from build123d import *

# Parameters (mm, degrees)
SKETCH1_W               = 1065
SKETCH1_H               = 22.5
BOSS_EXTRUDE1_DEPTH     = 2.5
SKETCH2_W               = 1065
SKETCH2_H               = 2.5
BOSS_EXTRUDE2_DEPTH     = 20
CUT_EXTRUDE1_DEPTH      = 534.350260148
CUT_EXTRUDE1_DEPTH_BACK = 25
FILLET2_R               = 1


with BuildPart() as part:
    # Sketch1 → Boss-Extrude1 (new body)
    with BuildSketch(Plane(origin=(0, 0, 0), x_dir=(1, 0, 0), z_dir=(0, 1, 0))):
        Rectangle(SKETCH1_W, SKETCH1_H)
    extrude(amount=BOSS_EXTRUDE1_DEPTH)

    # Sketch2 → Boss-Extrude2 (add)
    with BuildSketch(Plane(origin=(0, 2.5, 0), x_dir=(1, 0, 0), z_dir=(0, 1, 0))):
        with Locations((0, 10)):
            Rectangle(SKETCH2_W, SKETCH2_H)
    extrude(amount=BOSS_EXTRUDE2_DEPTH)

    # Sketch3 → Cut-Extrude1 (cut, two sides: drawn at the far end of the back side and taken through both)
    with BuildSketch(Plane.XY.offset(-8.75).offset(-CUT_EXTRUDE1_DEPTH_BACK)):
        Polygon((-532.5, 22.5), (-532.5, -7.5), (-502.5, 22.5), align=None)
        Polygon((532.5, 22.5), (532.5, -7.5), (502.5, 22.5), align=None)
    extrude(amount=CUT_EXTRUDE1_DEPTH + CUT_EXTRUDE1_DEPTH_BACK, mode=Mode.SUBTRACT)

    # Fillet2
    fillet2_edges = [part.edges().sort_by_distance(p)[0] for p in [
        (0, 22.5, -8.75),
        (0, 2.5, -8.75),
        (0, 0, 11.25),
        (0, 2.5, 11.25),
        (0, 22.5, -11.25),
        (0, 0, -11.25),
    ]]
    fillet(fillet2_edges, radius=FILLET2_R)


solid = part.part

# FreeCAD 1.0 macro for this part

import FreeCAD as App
import Part
import Sketcher

V = App.Vector


def edges_at(feature, points):
    """Names of the edges that pass closest to the given points."""
    edges = feature.Shape.Edges
    near = lambda p: min(range(len(edges)), key=lambda i: edges[i].distToShape(Part.Vertex(*p))[0])
    return sorted({f"Edge{near(p) + 1}" for p in points})

doc = App.newDocument("Part")
body = doc.addObject("PartDesign::Body", "Body")

sketch1 = body.newObject("Sketcher::SketchObject", "Sketch")
sketch1.AttachmentSupport = (doc.getObject("XZ_Plane"), [""])
sketch1.MapMode = "FlatFace"
sketch1.addGeometry([
    Part.LineSegment(V(-532, -11, 0), V(-532, 11, 0)),
    Part.LineSegment(V(-532, 11, 0), V(532, 11, 0)),
    Part.LineSegment(V(532, 11, 0), V(532, -11, 0)),
    Part.LineSegment(V(532, -11, 0), V(-532, -11, 0)),
], False)
sketch1.addConstraint([
    Sketcher.Constraint("Coincident", 0, 2, 1, 1),
    Sketcher.Constraint("Coincident", 1, 2, 2, 1),
    Sketcher.Constraint("Coincident", 2, 2, 3, 1),
    Sketcher.Constraint("Coincident", 3, 2, 0, 1),
    Sketcher.Constraint("Vertical", 0),
    Sketcher.Constraint("Horizontal", 1),
    Sketcher.Constraint("Vertical", 2),
    Sketcher.Constraint("Horizontal", 3),
    Sketcher.Constraint("Symmetric", 0, 2, 2, 2, -1, 1),
    Sketcher.Constraint("DistanceX", 1, 1, 1, 2, 1065.0),
    Sketcher.Constraint("DistanceY", 0, 1, 0, 2, 22.5),
])
pad1 = body.newObject("PartDesign::Pad", "Pad")
pad1.Profile = sketch1
pad1.Length = 2.5
pad1.Reversed = True

sketch2 = body.newObject("Sketcher::SketchObject", "Sketch001")
sketch2.AttachmentSupport = (doc.getObject("XZ_Plane"), [""])
sketch2.MapMode = "FlatFace"
sketch2.AttachmentOffset = App.Placement(V(0, 0, -2.5), App.Rotation())
sketch2.addGeometry([
    Part.LineSegment(V(-532.5, -11.2, 0), V(-532.5, -8.8, 0)),
    Part.LineSegment(V(-532.5, -8.8, 0), V(532.5, -8.8, 0)),
    Part.LineSegment(V(532.5, -8.8, 0), V(532.5, -11.2, 0)),
    Part.LineSegment(V(532.5, -11.2, 0), V(-532.5, -11.2, 0)),
], False)
sketch2.addConstraint([
    Sketcher.Constraint("Coincident", 0, 2, 1, 1),
    Sketcher.Constraint("Coincident", 1, 2, 2, 1),
    Sketcher.Constraint("Coincident", 2, 2, 3, 1),
    Sketcher.Constraint("Coincident", 3, 2, 0, 1),
    Sketcher.Constraint("Vertical", 0),
    Sketcher.Constraint("Horizontal", 1),
    Sketcher.Constraint("Vertical", 2),
    Sketcher.Constraint("Horizontal", 3),
    Sketcher.Constraint("DistanceX", 1, 1, 1, 2, 1065.0),
    Sketcher.Constraint("DistanceY", 0, 1, 0, 2, 2.5),
    Sketcher.Constraint("DistanceX", 0, 2, -1, 1, 532.5),
    Sketcher.Constraint("DistanceY", 0, 2, -1, 1, 8.75),
])
pad2 = body.newObject("PartDesign::Pad", "Pad001")
pad2.Profile = sketch2
pad2.Length = 20
pad2.Reversed = True

sketch3 = body.newObject("Sketcher::SketchObject", "Sketch002")
sketch3.AttachmentSupport = (doc.getObject("XY_Plane"), [""])
sketch3.MapMode = "FlatFace"
sketch3.AttachmentOffset = App.Placement(V(0, 0, -8.75), App.Rotation())
sketch3.addGeometry([
    Part.LineSegment(V(-532, 22, 0), V(-532, -8, 0)),
    Part.LineSegment(V(-532, -8, 0), V(-502, 22, 0)),
    Part.LineSegment(V(-502, 22, 0), V(-532, 22, 0)),
    Part.LineSegment(V(532, -8, 0), V(532, 22, 0)),
    Part.LineSegment(V(532, 22, 0), V(502, 22, 0)),
    Part.LineSegment(V(502, 22, 0), V(532, -8, 0)),
], False)
sketch3.addConstraint([
    Sketcher.Constraint("Coincident", 0, 2, 1, 1),
    Sketcher.Constraint("Coincident", 1, 2, 2, 1),
    Sketcher.Constraint("Coincident", 2, 2, 0, 1),
    Sketcher.Constraint("Coincident", 3, 2, 4, 1),
    Sketcher.Constraint("Coincident", 4, 2, 5, 1),
    Sketcher.Constraint("Coincident", 5, 2, 3, 1),
    Sketcher.Constraint("Vertical", 0),
    Sketcher.Constraint("Horizontal", 2),
    Sketcher.Constraint("Vertical", 3),
    Sketcher.Constraint("Horizontal", 4),
    Sketcher.Constraint("Symmetric", 2, 2, 3, 2, -2),
    Sketcher.Constraint("Perpendicular", 1, 5),
    Sketcher.Constraint("Horizontal", 0, 2, 5, 2),
    Sketcher.Constraint("Equal", 2, 4),
    Sketcher.Constraint("DistanceX", 2, 2, 2, 1, 30.0),
    Sketcher.Constraint("DistanceX", 1, 2, 3, 2, 1035.0),
    Sketcher.Constraint("DistanceY", 0, 2, -1, 1, 7.5),
])
pocket1 = body.newObject("PartDesign::Pocket", "Pocket")
pocket1.Profile = sketch3
pocket1.Type = "ThroughAll"
pocket1.Midplane = True
doc.recompute()

fillet = body.newObject("PartDesign::Fillet", "Fillet")
fillet.Base = (pocket1, edges_at(pocket1, [
    (0, 22.5, -8.75),
    (0, 2.5, -8.75),
    (0, 0, 11.25),
    (0, 2.5, 11.25),
    (0, 22.5, -11.25),
    (0, 0, -11.25),
]))
fillet.Radius = 1

doc.recompute()
